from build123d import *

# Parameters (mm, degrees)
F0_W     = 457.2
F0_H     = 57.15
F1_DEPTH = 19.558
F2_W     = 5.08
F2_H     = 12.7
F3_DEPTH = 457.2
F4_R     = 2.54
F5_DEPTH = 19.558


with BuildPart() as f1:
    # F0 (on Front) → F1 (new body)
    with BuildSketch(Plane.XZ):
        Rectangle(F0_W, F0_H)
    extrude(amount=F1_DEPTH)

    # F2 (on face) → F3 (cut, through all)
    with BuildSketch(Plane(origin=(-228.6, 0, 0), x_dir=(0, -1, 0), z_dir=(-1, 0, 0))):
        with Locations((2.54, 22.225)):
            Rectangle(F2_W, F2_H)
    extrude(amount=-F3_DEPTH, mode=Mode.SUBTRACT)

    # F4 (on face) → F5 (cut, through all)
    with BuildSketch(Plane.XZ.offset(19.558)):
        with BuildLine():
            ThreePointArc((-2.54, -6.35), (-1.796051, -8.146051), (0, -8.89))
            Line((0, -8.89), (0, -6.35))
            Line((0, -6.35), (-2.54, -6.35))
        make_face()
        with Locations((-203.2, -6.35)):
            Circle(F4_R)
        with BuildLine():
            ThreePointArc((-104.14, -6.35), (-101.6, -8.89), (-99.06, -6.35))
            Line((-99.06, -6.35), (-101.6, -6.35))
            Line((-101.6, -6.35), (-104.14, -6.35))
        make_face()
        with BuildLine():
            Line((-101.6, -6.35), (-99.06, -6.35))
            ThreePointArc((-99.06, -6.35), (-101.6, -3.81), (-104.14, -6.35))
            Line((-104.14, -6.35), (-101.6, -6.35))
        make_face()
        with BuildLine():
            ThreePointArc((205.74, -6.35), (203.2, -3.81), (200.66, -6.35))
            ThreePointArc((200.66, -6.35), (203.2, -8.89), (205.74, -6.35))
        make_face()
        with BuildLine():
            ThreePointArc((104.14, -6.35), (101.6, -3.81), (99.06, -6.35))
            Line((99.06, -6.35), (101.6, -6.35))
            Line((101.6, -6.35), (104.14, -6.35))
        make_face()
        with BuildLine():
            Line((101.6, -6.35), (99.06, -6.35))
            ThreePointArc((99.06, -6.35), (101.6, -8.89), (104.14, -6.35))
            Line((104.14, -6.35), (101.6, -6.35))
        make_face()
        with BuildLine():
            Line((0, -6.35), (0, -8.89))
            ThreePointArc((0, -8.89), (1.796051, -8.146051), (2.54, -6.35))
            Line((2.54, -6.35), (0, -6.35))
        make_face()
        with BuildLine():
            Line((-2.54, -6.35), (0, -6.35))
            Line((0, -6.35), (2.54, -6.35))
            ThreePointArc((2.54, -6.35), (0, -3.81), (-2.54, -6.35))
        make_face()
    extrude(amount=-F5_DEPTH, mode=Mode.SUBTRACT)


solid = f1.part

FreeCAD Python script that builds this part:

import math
import FreeCAD as App
import Part
import Sketcher
Q = App.Units.Quantity


def add_polygon(sketch, points):
    """Adds a closed chain of lines whose ends are joined by coincident constraints."""
    first, n = sketch.GeometryCount, len(points)
    for a, b in zip(points, points[1:] + points[:1]):
        sketch.addGeometry(Part.LineSegment(App.Vector(*a, 0), App.Vector(*b, 0)), False)
    for i in range(n):
        sketch.addConstraint(Sketcher.Constraint("Coincident", first + i, 2, first + (i + 1) % n, 1))

doc = App.newDocument("Part")
body = doc.addObject("PartDesign::Body", "Body")

# Sketch on XZ plane
sketch1 = body.newObject("Sketcher::SketchObject", "Sketch")
sketch1.AttachmentSupport = (doc.getObject("XZ_Plane"), [""])
sketch1.MapMode = "FlatFace"
add_polygon(sketch1, [(-228.6, 28.575), (-228.6, -28.575), (228.6, -28.575), (228.6, 28.575)])  # lines 0-3
sketch1.addConstraint([
    Sketcher.Constraint("Vertical", 0),
    Sketcher.Constraint("Horizontal", 1),
    Sketcher.Constraint("Vertical", 2),
    Sketcher.Constraint("Horizontal", 3),
    Sketcher.Constraint("Symmetric", 0, 2, 2, 2, -1, 1),
    Sketcher.Constraint("DistanceX", 1, 1, 1, 2, Q("18 in")),
    Sketcher.Constraint("DistanceY", 0, 2, 0, 1, Q("2.25 in")),
])
pad1 = body.newObject("PartDesign::Pad", "Pad")
pad1.Profile = sketch1
pad1.Length = Q("0.77 in")

# Sketch on YZ plane
sketch2 = body.newObject("Sketcher::SketchObject", "Sketch001")
sketch2.AttachmentSupport = (doc.getObject("YZ_Plane"), [""])
sketch2.MapMode = "FlatFace"
sketch2.AttachmentOffset = App.Placement(App.Vector(0, 0, -9 * 25.4), App.Rotation())
add_polygon(sketch2, [(0, 28.575), (0, 15.875), (-5.08, 15.875), (-5.08, 28.575)])  # lines 0-3
sketch2.addConstraint([
    Sketcher.Constraint("Vertical", 0),
    Sketcher.Constraint("Horizontal", 1),
    Sketcher.Constraint("Vertical", 2),
    Sketcher.Constraint("Horizontal", 3),
    Sketcher.Constraint("PointOnObject", 0, 2, -2),
    Sketcher.Constraint("DistanceX", 1, 2, 1, 1, Q("0.2 in")),
    Sketcher.Constraint("DistanceY", 0, 2, 0, 1, Q("0.5 in")),
    Sketcher.Constraint("DistanceY", -1, 1, 0, 2, Q("0.625 in")),
])
pocket1 = body.newObject("PartDesign::Pocket", "Pocket")
pocket1.Profile = sketch2
pocket1.Type = "ThroughAll"
pocket1.Reversed = True

# Sketch on XZ plane
sketch3 = body.newObject("Sketcher::SketchObject", "Sketch002")
sketch3.AttachmentSupport = (doc.getObject("XZ_Plane"), [""])
sketch3.MapMode = "FlatFace"
sketch3.AttachmentOffset = App.Placement(App.Vector(0, 0, 0.77 * 25.4), App.Rotation())
sketch3.addGeometry([
    Part.ArcOfCircle(Part.Circle(App.Vector(0.000001, -6.349999, 0), App.Vector(0, 0, 1), 2.540001), math.radians(-179.999983), math.radians(-90.000017)),  # 0
    Part.ArcOfCircle(Part.Circle(App.Vector(-0.000001, -6.349999, 0), App.Vector(0, 0, 1), 2.540001), math.radians(-89.999983), math.radians(-0.000017)),  # 1
    Part.ArcOfCircle(Part.Circle(App.Vector(0, -6.35, 0), App.Vector(0, 0, 1), 2.54), math.radians(0), math.radians(180)),  # 2
    Part.Circle(App.Vector(-203.2, -6.35, 0), App.Vector(0, 0, 1), 2.54),  # 3
    Part.Circle(App.Vector(-101.6, -6.35, 0), App.Vector(0, 0, 1), 2.54),  # 4
    Part.Circle(App.Vector(203.2, -6.35, 0), App.Vector(0, 0, 1), 2.54),  # 5
    Part.Circle(App.Vector(101.6, -6.35, 0), App.Vector(0, 0, 1), 2.54),  # 6
], False)
sketch3.addConstraint([
    Sketcher.Constraint("Tangent", 0, 2, 1, 1),
    Sketcher.Constraint("Tangent", 1, 2, 2, 1),
    Sketcher.Constraint("Tangent", 2, 2, 0, 1),
    Sketcher.Constraint("Equal", 2, 3),
    Sketcher.Constraint("Equal", 3, 4),
    Sketcher.Constraint("Equal", 4, 5),
    Sketcher.Constraint("Equal", 5, 6),
    Sketcher.Constraint("Symmetric", 3, 3, 5, 3, -2),
    Sketcher.Constraint("Symmetric", 4, 3, 6, 3, -2),
    Sketcher.Constraint("Symmetric", 1, 2, 2, 2, -2),
    Sketcher.Constraint("PointOnObject", 0, 2, -2),
    Sketcher.Constraint("Horizontal", 2, 3, 3, 3),
    Sketcher.Constraint("Horizontal", 3, 3, 4, 3),
    Sketcher.Constraint("Horizontal", 6, 3, 1, 2),
    Sketcher.Constraint("Diameter", 3, Q("0.2 in")),
    Sketcher.Constraint("DistanceX", 3, 3, -1, 1, Q("8 in")),
    Sketcher.Constraint("DistanceX", 4, 3, -1, 1, Q("4 in")),
    Sketcher.Constraint("DistanceY", 0, 3, -1, 1, Q("0.25 in")),
])
pocket2 = body.newObject("PartDesign::Pocket", "Pocket001")
pocket2.Profile = sketch3
pocket2.Type = "ThroughAll"

doc.recompute()
